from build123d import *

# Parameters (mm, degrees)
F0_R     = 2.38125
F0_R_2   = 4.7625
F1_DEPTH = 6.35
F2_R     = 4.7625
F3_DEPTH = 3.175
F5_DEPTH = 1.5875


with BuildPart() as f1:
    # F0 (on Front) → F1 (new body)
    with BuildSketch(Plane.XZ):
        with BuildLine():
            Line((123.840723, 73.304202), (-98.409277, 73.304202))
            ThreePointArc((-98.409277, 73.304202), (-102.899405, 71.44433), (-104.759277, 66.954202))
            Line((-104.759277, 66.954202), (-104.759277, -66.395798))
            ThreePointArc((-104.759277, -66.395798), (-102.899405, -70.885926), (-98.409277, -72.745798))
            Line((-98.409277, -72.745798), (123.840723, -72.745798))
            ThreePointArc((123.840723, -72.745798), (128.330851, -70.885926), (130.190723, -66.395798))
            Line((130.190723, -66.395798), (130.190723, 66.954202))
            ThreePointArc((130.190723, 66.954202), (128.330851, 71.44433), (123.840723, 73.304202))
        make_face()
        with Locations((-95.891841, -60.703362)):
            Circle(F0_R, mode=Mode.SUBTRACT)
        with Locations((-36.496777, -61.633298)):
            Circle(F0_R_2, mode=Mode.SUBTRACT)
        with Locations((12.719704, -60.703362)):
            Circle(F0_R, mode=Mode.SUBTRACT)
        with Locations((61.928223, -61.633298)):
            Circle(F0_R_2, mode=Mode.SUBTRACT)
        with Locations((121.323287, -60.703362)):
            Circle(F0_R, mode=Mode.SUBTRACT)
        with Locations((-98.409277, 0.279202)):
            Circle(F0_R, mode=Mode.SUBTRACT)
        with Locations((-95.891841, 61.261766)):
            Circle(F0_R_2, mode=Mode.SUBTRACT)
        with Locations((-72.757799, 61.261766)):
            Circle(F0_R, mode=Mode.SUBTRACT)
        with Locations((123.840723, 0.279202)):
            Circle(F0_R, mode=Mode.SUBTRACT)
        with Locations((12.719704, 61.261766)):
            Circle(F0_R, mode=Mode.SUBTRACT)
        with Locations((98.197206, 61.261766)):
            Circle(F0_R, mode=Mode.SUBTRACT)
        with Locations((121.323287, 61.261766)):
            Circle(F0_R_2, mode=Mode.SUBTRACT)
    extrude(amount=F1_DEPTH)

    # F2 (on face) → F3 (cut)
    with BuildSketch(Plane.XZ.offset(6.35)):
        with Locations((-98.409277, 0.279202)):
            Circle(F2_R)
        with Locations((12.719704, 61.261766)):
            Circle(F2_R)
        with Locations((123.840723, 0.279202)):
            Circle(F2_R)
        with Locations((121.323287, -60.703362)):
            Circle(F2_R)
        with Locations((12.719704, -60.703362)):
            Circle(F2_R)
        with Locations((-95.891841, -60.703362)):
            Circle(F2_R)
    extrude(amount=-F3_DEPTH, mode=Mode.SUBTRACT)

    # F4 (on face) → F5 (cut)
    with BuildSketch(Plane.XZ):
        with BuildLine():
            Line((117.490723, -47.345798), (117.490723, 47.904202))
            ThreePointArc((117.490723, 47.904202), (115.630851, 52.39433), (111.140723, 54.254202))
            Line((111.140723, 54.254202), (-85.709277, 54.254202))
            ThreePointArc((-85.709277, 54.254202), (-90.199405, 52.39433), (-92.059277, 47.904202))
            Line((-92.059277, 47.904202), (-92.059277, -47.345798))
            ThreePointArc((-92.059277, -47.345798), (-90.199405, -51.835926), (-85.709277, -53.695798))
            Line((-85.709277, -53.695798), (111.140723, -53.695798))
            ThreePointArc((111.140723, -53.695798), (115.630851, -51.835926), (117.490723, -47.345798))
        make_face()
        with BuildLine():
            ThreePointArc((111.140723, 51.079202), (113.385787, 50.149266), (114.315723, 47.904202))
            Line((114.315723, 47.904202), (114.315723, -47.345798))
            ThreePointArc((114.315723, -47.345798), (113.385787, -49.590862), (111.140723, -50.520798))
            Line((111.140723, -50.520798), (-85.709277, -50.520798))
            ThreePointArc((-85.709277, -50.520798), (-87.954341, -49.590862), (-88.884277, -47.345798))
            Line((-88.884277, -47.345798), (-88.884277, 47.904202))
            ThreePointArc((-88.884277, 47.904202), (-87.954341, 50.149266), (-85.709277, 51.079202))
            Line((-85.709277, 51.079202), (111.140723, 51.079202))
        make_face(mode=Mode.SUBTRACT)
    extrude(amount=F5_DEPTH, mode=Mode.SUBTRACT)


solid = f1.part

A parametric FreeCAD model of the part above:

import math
import FreeCAD as App
import Part
import Sketcher

V = App.Vector
Q = App.Units.Quantity

doc = App.newDocument("Part")
body = doc.addObject("PartDesign::Body", "Body")

# Sketch on XZ plane
sketch1 = body.newObject("Sketcher::SketchObject", "Sketch")
sketch1.AttachmentSupport = (doc.getObject("XZ_Plane"), [""])
sketch1.MapMode = "FlatFace"
sketch1.addGeometry(Part.LineSegment(V(123.8, 73.3, 0), V(-98.4, 73.3, 0)), False)
sketch1.addGeometry(Part.ArcOfCircle(Part.Circle(V(-98.4, 67, 0), V(0, 0, 1), 6.4), math.radians(90), math.radians(180)), False)
sketch1.addGeometry(Part.LineSegment(V(-104.8, 67, 0), V(-104.8, -66.4, 0)), False)
sketch1.addGeometry(Part.ArcOfCircle(Part.Circle(V(-98.4, -66.4, 0), V(0, 0, 1), 6.4), math.radians(-180), math.radians(-90)), False)
sketch1.addGeometry(Part.LineSegment(V(-98.4, -72.7, 0), V(123.8, -72.7, 0)), False)
sketch1.addGeometry(Part.ArcOfCircle(Part.Circle(V(123.8, -66.4, 0), V(0, 0, 1), 6.4), math.radians(-90), math.radians(0)), False)
sketch1.addGeometry(Part.LineSegment(V(130.2, -66.4, 0), V(130.2, 67, 0)), False)
sketch1.addGeometry(Part.ArcOfCircle(Part.Circle(V(123.8, 67, 0), V(0, 0, 1), 6.4), math.radians(0), math.radians(90)), False)
sketch1.addGeometry(Part.Circle(V(-95.9, -60.7, 0), V(0, 0, 1), 2.4), False)
sketch1.addGeometry(Part.Circle(V(-36.5, -61.6, 0), V(0, 0, 1), 4.8), False)
sketch1.addGeometry(Part.Circle(V(12.7, -60.7, 0), V(0, 0, 1), 2.4), False)
sketch1.addGeometry(Part.Circle(V(61.9, -61.6, 0), V(0, 0, 1), 4.8), False)
sketch1.addGeometry(Part.Circle(V(121.3, -60.7, 0), V(0, 0, 1), 2.4), False)
sketch1.addGeometry(Part.Circle(V(-98.4, 0.3, 0), V(0, 0, 1), 2.4), False)
sketch1.addGeometry(Part.Circle(V(-95.9, 61.3, 0), V(0, 0, 1), 4.8), False)
sketch1.addGeometry(Part.Circle(V(-72.8, 61.3, 0), V(0, 0, 1), 2.4), False)
sketch1.addGeometry(Part.Circle(V(123.8, 0.3, 0), V(0, 0, 1), 2.4), False)
sketch1.addGeometry(Part.Circle(V(12.7, 61.3, 0), V(0, 0, 1), 2.4), False)
sketch1.addGeometry(Part.Circle(V(98.2, 61.3, 0), V(0, 0, 1), 2.4), False)
sketch1.addGeometry(Part.Circle(V(121.3, 61.3, 0), V(0, 0, 1), 4.8), False)
sketch1.addConstraint(Sketcher.Constraint("Tangent", 0, 2, 1, 1))
sketch1.addConstraint(Sketcher.Constraint("Tangent", 1, 2, 2, 1))
sketch1.addConstraint(Sketcher.Constraint("Tangent", 2, 2, 3, 1))
sketch1.addConstraint(Sketcher.Constraint("Tangent", 3, 2, 4, 1))
sketch1.addConstraint(Sketcher.Constraint("Tangent", 4, 2, 5, 1))
sketch1.addConstraint(Sketcher.Constraint("Tangent", 5, 2, 6, 1))
sketch1.addConstraint(Sketcher.Constraint("Tangent", 6, 2, 7, 1))
sketch1.addConstraint(Sketcher.Constraint("Tangent", 7, 2, 0, 1))
sketch1.addConstraint(Sketcher.Constraint("Horizontal", 0))
sketch1.addConstraint(Sketcher.Constraint("Vertical", 2))
sketch1.addConstraint(Sketcher.Constraint("Horizontal", 4))
sketch1.addConstraint(Sketcher.Constraint("Vertical", 6))
sketch1.addConstraint(Sketcher.Constraint("Equal", 1, 3))
sketch1.addConstraint(Sketcher.Constraint("Equal", 3, 5))
sketch1.addConstraint(Sketcher.Constraint("Equal", 5, 7))
sketch1.addConstraint(Sketcher.Constraint("Equal", 8, 10))
sketch1.addConstraint(Sketcher.Constraint("Equal", 9, 11))
sketch1.addConstraint(Sketcher.Constraint("Equal", 10, 12))
sketch1.addConstraint(Sketcher.Constraint("Equal", 12, 13))
sketch1.addConstraint(Sketcher.Constraint("Equal", 11, 14))
sketch1.addConstraint(Sketcher.Constraint("Equal", 13, 15))
sketch1.addConstraint(Sketcher.Constraint("Equal", 15, 16))
sketch1.addConstraint(Sketcher.Constraint("Equal", 16, 17))
sketch1.addConstraint(Sketcher.Constraint("Equal", 17, 18))
sketch1.addConstraint(Sketcher.Constraint("Equal", 14, 19))
sketch1.addConstraint(Sketcher.Constraint("Horizontal", 8, 3, 10, 3))
sketch1.addConstraint(Sketcher.Constraint("Horizontal", 9, 3, 11, 3))
sketch1.addConstraint(Sketcher.Constraint("Horizontal", 10, 3, 12, 3))
sketch1.addConstraint(Sketcher.Constraint("Horizontal", 14, 3, 15, 3))
sketch1.addConstraint(Sketcher.Constraint("Horizontal", 13, 3, 16, 3))
sketch1.addConstraint(Sketcher.Constraint("Horizontal", 15, 3, 17, 3))
sketch1.addConstraint(Sketcher.Constraint("Horizontal", 17, 3, 18, 3))
sketch1.addConstraint(Sketcher.Constraint("Horizontal", 18, 3, 19, 3))
sketch1.addConstraint(Sketcher.Constraint("Vertical", 3, 3, 13, 3))
sketch1.addConstraint(Sketcher.Constraint("Vertical", 8, 3, 14, 3))
sketch1.addConstraint(Sketcher.Constraint("Vertical", 7, 3, 16, 3))
sketch1.addConstraint(Sketcher.Constraint("Vertical", 10, 3, 17, 3))
sketch1.addConstraint(Sketcher.Constraint("Vertical", 12, 3, 19, 3))
sketch1.addConstraint(Sketcher.Constraint("Radius", 1, Q("0.25 in")))
sketch1.addConstraint(Sketcher.Constraint("Diameter", 8, Q("0.1875 in")))
sketch1.addConstraint(Sketcher.Constraint("Diameter", 9, Q("0.375 in")))
sketch1.addConstraint(Sketcher.Constraint("DistanceX", 0, 2, 0, 1, Q("8.75 in")))
sketch1.addConstraint(Sketcher.Constraint("DistanceY", 2, 2, 2, 1, Q("5.25 in")))
sketch1.addConstraint(Sketcher.Constraint("DistanceX", 3, 3, 9, 3, Q("2.4375 in")))
sketch1.addConstraint(Sketcher.Constraint("DistanceY", 3, 3, 9, 3, Q("0.1875 in")))
sketch1.addConstraint(Sketcher.Constraint("DistanceX", 11, 3, 5, 3, Q("2.4375 in")))
sketch1.addConstraint(Sketcher.Constraint("DistanceY", 13, 3, 1, 3, Q("2.625 in")))
sketch1.addConstraint(Sketcher.Constraint("DistanceY", -1, 1, 1, 3, 66.954202))
sketch1.addConstraint(Sketcher.Constraint("DistanceX", 15, 3, -1, 1, 72.757799))
sketch1.addConstraint(Sketcher.Constraint("DistanceX", 17, 3, 18, 3, 85.477502))
sketch1.addConstraint(Sketcher.Constraint("DistanceX", 8, 3, -1, 1, 95.891841))
sketch1.addConstraint(Sketcher.Constraint("DistanceY", 8, 3, -1, 1, 60.703362))
sketch1.addConstraint(Sketcher.Constraint("DistanceX", 9, 3, 10, 3, 49.216481))
sketch1.addConstraint(Sketcher.Constraint("DistanceX", 18, 3, 12, 3, 23.126081))
sketch1.addConstraint(Sketcher.Constraint("DistanceX", 1, 3, -1, 1, 98.409277))
sketch1.addConstraint(Sketcher.Constraint("DistanceY", -1, 1, 14, 3, 61.261766))
pad1 = body.newObject("PartDesign::Pad", "Pad")
pad1.Profile = sketch1
pad1.Length = Q("0.25 in")

# Sketch on XZ plane
sketch2 = body.newObject("Sketcher::SketchObject", "Sketch001")
sketch2.AttachmentSupport = (doc.getObject("XZ_Plane"), [""])
sketch2.MapMode = "FlatFace"
sketch2.AttachmentOffset = App.Placement(V(0, 0, 0.25 * 25.4), App.Rotation())
sketch2.addGeometry(Part.Circle(V(-98.4, 0.3, 0), V(0, 0, 1), 4.8), False)
sketch2.addGeometry(Part.Circle(V(12.7, 61.3, 0), V(0, 0, 1), 4.8), False)
sketch2.addGeometry(Part.Circle(V(123.8, 0.3, 0), V(0, 0, 1), 4.8), False)
sketch2.addGeometry(Part.Circle(V(121.3, -60.7, 0), V(0, 0, 1), 4.8), False)
sketch2.addGeometry(Part.Circle(V(12.7, -60.7, 0), V(0, 0, 1), 4.8), False)
sketch2.addGeometry(Part.Circle(V(-95.9, -60.7, 0), V(0, 0, 1), 4.8), False)
sketch2.addConstraint(Sketcher.Constraint("Equal", 0, 1))
sketch2.addConstraint(Sketcher.Constraint("Equal", 1, 2))
sketch2.addConstraint(Sketcher.Constraint("Equal", 2, 3))
sketch2.addConstraint(Sketcher.Constraint("Equal", 3, 4))
sketch2.addConstraint(Sketcher.Constraint("Equal", 4, 5))
sketch2.addConstraint(Sketcher.Constraint("Horizontal", 0, 3, 2, 3))
sketch2.addConstraint(Sketcher.Constraint("Horizontal", 3, 3, 4, 3))
sketch2.addConstraint(Sketcher.Constraint("Horizontal", 4, 3, 5, 3))
sketch2.addConstraint(Sketcher.Constraint("Vertical", 1, 3, 4, 3))
sketch2.addConstraint(Sketcher.Constraint("Diameter", 0, Q("0.375 in")))
sketch2.addConstraint(Sketcher.Constraint("DistanceX", 0, 3, 2, 3, Q("8.75 in")))
sketch2.addConstraint(Sketcher.Constraint("DistanceY", 3, 3, -1, 1, 60.703362))
sketch2.addConstraint(Sketcher.Constraint("DistanceX", 5, 3, -1, 1, 95.891841))
sketch2.addConstraint(Sketcher.Constraint("DistanceX", 0, 3, 1, 3, 111.128981))
sketch2.addConstraint(Sketcher.Constraint("DistanceX", 5, 3, 3, 3, 217.215128))
sketch2.addConstraint(Sketcher.Constraint("DistanceX", 0, 3, -1, 1, 98.409277))
sketch2.addConstraint(Sketcher.Constraint("DistanceY", -1, 1, 0, 3, 0.279202))
sketch2.addConstraint(Sketcher.Constraint("DistanceY", -1, 1, 1, 3, 61.261766))
pocket1 = body.newObject("PartDesign::Pocket", "Pocket")
pocket1.Profile = sketch2
pocket1.Length = Q("0.125 in")

# Sketch on XZ plane
sketch3 = body.newObject("Sketcher::SketchObject", "Sketch002")
sketch3.AttachmentSupport = (doc.getObject("XZ_Plane"), [""])
sketch3.MapMode = "FlatFace"
sketch3.addGeometry(Part.LineSegment(V(117.5, -47.3, 0), V(117.5, 47.9, 0)), False)
sketch3.addGeometry(Part.ArcOfCircle(Part.Circle(V(111.1, 47.9, 0), V(0, 0, 1), 6.4), math.radians(0), math.radians(90)), False)
sketch3.addGeometry(Part.LineSegment(V(111.1, 54.3, 0), V(-85.7, 54.3, 0)), False)
sketch3.addGeometry(Part.ArcOfCircle(Part.Circle(V(-85.7, 47.9, 0), V(0, 0, 1), 6.4), math.radians(90), math.radians(180)), False)
sketch3.addGeometry(Part.LineSegment(V(-92.1, 47.9, 0), V(-92.1, -47.3, 0)), False)
sketch3.addGeometry(Part.ArcOfCircle(Part.Circle(V(-85.7, -47.3, 0), V(0, 0, 1), 6.4), math.radians(-180), math.radians(-90)), False)
sketch3.addGeometry(Part.LineSegment(V(-85.7, -53.7, 0), V(111.1, -53.7, 0)), False)
sketch3.addGeometry(Part.ArcOfCircle(Part.Circle(V(111.1, -47.3, 0), V(0, 0, 1), 6.4), math.radians(-90), math.radians(0)), False)
sketch3.addGeometry(Part.LineSegment(V(-85.7, 51.1, 0), V(111.1, 51.1, 0)), False)
sketch3.addGeometry(Part.ArcOfCircle(Part.Circle(V(111.1, 47.9, 0), V(0, 0, 1), 3.2), math.radians(0), math.radians(90)), False)
sketch3.addGeometry(Part.LineSegment(V(114.3, 47.9, 0), V(114.3, -47.3, 0)), False)
sketch3.addGeometry(Part.ArcOfCircle(Part.Circle(V(111.1, -47.3, 0), V(0, 0, 1), 3.2), math.radians(-90), math.radians(0)), False)
sketch3.addGeometry(Part.LineSegment(V(111.1, -50.5, 0), V(-85.7, -50.5, 0)), False)
sketch3.addGeometry(Part.ArcOfCircle(Part.Circle(V(-85.7, -47.3, 0), V(0, 0, 1), 3.2), math.radians(-180), math.radians(-90)), False)
sketch3.addGeometry(Part.LineSegment(V(-88.9, -47.3, 0), V(-88.9, 47.9, 0)), False)
sketch3.addGeometry(Part.ArcOfCircle(Part.Circle(V(-85.7, 47.9, 0), V(0, 0, 1), 3.2), math.radians(90), math.radians(180)), False)
sketch3.addConstraint(Sketcher.Constraint("Tangent", 0, 2, 1, 1))
sketch3.addConstraint(Sketcher.Constraint("Tangent", 1, 2, 2, 1))
sketch3.addConstraint(Sketcher.Constraint("Tangent", 2, 2, 3, 1))
sketch3.addConstraint(Sketcher.Constraint("Tangent", 3, 2, 4, 1))
sketch3.addConstraint(Sketcher.Constraint("Tangent", 4, 2, 5, 1))
sketch3.addConstraint(Sketcher.Constraint("Tangent", 5, 2, 6, 1))
sketch3.addConstraint(Sketcher.Constraint("Tangent", 6, 2, 7, 1))
sketch3.addConstraint(Sketcher.Constraint("Tangent", 7, 2, 0, 1))
sketch3.addConstraint(Sketcher.Constraint("Tangent", 8, 2, 9, 2))
sketch3.addConstraint(Sketcher.Constraint("Tangent", 9, 1, 10, 1))
sketch3.addConstraint(Sketcher.Constraint("Tangent", 10, 2, 11, 2))
sketch3.addConstraint(Sketcher.Constraint("Tangent", 11, 1, 12, 1))
sketch3.addConstraint(Sketcher.Constraint("Tangent", 12, 2, 13, 2))
sketch3.addConstraint(Sketcher.Constraint("Tangent", 13, 1, 14, 1))
sketch3.addConstraint(Sketcher.Constraint("Tangent", 14, 2, 15, 2))
sketch3.addConstraint(Sketcher.Constraint("Tangent", 15, 1, 8, 1))
sketch3.addConstraint(Sketcher.Constraint("Vertical", 0))
sketch3.addConstraint(Sketcher.Constraint("Horizontal", 2))
sketch3.addConstraint(Sketcher.Constraint("Vertical", 4))
sketch3.addConstraint(Sketcher.Constraint("Horizontal", 6))
sketch3.addConstraint(Sketcher.Constraint("Horizontal", 8))
sketch3.addConstraint(Sketcher.Constraint("Vertical", 10))
sketch3.addConstraint(Sketcher.Constraint("Horizontal", 12))
sketch3.addConstraint(Sketcher.Constraint("Vertical", 14))
sketch3.addConstraint(Sketcher.Constraint("Coincident", 9, 3, 1, 3))
sketch3.addConstraint(Sketcher.Constraint("Coincident", 11, 3, 7, 3))
sketch3.addConstraint(Sketcher.Constraint("Coincident", 13, 3, 5, 3))
sketch3.addConstraint(Sketcher.Constraint("Equal", 1, 3))
sketch3.addConstraint(Sketcher.Constraint("Equal", 3, 5))
sketch3.addConstraint(Sketcher.Constraint("Equal", 5, 7))
sketch3.addConstraint(Sketcher.Constraint("Equal", 13, 15))
sketch3.addConstraint(Sketcher.Constraint("Radius", 1, Q("0.25 in")))
sketch3.addConstraint(Sketcher.Constraint("Radius", 9, Q("0.125 in")))
sketch3.addConstraint(Sketcher.Constraint("DistanceX", 3, 3, 0, 2, Q("8 in")))
sketch3.addConstraint(Sketcher.Constraint("DistanceY", 7, 3, 1, 2, Q("4 in")))
sketch3.addConstraint(Sketcher.Constraint("DistanceY", -1, 1, 1, 3, 47.904202))
sketch3.addConstraint(Sketcher.Constraint("DistanceX", -1, 1, 1, 3, 111.140723))
pocket2 = body.newObject("PartDesign::Pocket", "Pocket001")
pocket2.Profile = sketch3
pocket2.Length = Q("0.0625 in")
pocket2.Reversed = True

doc.recompute()
